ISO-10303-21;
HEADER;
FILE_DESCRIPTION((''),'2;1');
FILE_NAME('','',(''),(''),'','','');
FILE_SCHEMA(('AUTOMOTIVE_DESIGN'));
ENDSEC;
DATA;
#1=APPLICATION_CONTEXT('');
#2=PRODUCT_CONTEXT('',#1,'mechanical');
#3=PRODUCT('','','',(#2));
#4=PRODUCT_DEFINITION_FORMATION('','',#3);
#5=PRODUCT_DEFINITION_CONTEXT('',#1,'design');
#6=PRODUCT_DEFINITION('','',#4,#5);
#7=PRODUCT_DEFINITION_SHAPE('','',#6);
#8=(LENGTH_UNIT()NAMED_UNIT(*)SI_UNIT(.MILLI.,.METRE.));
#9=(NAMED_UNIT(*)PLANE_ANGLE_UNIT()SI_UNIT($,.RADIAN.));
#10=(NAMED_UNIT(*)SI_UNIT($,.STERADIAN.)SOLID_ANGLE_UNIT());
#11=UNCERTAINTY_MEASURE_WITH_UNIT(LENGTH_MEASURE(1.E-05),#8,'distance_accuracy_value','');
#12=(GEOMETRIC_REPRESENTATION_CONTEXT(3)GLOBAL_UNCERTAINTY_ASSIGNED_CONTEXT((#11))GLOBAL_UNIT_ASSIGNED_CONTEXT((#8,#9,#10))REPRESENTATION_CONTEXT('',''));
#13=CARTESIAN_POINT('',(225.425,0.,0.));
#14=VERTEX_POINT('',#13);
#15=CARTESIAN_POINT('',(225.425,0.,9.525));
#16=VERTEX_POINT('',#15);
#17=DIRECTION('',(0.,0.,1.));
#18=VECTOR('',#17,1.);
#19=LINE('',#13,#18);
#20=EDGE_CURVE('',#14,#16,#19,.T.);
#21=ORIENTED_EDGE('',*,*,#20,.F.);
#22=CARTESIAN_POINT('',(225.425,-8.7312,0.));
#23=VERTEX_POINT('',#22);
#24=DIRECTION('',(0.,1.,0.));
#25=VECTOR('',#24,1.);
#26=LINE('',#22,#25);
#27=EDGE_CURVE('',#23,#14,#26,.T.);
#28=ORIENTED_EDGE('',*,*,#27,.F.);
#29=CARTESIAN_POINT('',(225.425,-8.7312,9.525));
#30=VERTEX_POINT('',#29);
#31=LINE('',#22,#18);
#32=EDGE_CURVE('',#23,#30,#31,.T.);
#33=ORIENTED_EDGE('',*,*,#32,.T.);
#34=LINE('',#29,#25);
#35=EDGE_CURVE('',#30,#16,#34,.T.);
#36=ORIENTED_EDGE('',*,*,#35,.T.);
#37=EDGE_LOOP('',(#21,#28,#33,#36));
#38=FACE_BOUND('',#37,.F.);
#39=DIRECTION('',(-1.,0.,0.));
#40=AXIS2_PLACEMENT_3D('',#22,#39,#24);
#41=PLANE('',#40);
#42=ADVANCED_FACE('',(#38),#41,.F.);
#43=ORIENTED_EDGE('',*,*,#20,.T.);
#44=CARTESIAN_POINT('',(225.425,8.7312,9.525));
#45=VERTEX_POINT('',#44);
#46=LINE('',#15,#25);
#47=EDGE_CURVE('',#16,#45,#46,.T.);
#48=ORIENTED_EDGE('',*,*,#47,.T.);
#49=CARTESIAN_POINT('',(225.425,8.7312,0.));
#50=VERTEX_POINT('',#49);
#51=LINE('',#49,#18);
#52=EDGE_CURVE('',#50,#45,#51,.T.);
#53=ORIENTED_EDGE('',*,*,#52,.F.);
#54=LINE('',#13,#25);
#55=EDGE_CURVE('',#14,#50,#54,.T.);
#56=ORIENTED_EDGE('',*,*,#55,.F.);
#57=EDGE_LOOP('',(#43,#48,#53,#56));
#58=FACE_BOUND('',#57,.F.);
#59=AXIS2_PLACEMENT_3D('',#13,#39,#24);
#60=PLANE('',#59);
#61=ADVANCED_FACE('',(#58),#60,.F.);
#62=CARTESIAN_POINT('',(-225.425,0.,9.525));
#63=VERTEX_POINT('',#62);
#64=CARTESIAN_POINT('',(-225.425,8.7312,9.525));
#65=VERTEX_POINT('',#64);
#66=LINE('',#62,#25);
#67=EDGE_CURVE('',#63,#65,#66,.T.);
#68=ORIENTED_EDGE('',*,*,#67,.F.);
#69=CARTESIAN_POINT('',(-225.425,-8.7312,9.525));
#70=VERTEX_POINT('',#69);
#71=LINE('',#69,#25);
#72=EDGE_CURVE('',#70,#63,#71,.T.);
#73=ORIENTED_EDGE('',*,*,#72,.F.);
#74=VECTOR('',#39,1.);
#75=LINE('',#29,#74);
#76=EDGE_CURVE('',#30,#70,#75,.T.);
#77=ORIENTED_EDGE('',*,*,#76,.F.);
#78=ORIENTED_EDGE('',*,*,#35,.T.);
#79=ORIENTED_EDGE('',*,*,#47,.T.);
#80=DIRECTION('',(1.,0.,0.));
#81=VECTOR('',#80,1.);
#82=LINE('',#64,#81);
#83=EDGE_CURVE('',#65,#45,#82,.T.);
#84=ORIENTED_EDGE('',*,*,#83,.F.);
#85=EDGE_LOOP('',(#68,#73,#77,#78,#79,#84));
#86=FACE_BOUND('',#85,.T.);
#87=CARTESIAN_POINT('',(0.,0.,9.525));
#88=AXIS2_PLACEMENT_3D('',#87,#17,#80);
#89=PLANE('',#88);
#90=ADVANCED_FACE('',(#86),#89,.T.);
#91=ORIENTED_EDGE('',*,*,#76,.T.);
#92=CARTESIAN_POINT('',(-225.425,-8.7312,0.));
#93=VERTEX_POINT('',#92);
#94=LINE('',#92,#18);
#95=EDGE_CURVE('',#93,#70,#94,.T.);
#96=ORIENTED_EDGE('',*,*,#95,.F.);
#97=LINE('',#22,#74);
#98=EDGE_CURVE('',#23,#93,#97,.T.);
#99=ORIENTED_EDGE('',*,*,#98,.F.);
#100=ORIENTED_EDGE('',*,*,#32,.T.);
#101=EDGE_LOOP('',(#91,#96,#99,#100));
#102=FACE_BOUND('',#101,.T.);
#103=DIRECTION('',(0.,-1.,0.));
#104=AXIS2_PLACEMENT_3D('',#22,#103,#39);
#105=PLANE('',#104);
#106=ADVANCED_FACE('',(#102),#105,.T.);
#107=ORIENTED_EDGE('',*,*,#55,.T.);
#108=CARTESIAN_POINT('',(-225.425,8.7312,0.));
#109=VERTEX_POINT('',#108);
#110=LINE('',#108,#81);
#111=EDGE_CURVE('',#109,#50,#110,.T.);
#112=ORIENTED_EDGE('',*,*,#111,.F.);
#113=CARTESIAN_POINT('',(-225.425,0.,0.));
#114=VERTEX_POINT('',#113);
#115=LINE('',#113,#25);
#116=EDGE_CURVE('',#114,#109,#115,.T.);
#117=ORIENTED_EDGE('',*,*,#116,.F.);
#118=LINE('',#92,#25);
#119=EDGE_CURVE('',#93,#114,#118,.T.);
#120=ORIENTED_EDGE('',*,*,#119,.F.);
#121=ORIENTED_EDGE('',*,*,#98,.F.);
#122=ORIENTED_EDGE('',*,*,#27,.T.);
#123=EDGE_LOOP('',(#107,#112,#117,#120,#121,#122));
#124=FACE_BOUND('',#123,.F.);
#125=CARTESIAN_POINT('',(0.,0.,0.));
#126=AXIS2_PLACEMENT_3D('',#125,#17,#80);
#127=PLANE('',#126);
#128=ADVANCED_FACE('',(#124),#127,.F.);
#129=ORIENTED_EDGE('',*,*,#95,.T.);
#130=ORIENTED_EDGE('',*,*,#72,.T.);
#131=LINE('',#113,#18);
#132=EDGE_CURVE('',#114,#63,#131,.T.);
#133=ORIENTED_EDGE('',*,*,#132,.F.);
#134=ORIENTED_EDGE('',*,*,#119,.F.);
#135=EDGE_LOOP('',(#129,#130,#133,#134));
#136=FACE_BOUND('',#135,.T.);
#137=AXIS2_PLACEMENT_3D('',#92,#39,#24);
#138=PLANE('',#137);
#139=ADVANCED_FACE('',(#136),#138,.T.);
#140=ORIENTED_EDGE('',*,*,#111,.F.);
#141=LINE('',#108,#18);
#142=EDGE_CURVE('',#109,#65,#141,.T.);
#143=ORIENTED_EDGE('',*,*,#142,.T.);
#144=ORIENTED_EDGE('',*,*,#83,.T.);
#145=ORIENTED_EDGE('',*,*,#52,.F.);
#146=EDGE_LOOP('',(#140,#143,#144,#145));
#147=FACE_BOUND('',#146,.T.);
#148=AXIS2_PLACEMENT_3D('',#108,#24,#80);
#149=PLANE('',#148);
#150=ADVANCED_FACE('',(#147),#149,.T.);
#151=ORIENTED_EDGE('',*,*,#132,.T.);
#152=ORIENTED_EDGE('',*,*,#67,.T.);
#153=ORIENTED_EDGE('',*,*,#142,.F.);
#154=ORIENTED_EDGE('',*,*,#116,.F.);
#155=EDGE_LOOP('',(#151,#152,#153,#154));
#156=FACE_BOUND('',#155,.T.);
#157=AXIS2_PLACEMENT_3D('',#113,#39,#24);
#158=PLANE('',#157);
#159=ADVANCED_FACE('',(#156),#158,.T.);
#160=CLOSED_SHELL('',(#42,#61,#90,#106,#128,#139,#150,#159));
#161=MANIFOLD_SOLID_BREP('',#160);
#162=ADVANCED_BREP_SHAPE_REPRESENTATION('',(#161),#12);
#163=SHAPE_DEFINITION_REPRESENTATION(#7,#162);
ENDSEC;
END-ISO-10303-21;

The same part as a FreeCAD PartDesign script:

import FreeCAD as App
import Part
import Sketcher
Q = App.Units.Quantity

doc = App.newDocument("Part")
body = doc.addObject("PartDesign::Body", "Body")

sketch1 = doc.addObject("Sketcher::SketchObject", "Sketch")
body.addObject(sketch1)
sketch1.AttachmentSupport = (doc.XY_Plane, [""])
sketch1.MapMode = "FlatFace"
sketch1.addGeometry(Part.LineSegment(App.Vector(-225, -9, 0), App.Vector(225, -9, 0)), False)
sketch1.addGeometry(Part.LineSegment(App.Vector(225, -9, 0), App.Vector(225, 9, 0)), False)
sketch1.addGeometry(Part.LineSegment(App.Vector(225, 9, 0), App.Vector(-225, 9, 0)), False)
sketch1.addGeometry(Part.LineSegment(App.Vector(-225, 9, 0), App.Vector(-225, -9, 0)), False)
sketch1.addConstraint(Sketcher.Constraint("Coincident", 0, 2, 1, 1))
sketch1.addConstraint(Sketcher.Constraint("Coincident", 1, 2, 2, 1))
sketch1.addConstraint(Sketcher.Constraint("Coincident", 2, 2, 3, 1))
sketch1.addConstraint(Sketcher.Constraint("Coincident", 3, 2, 0, 1))
sketch1.addConstraint(Sketcher.Constraint("Horizontal", 0))
sketch1.addConstraint(Sketcher.Constraint("Vertical", 1))
sketch1.addConstraint(Sketcher.Constraint("Horizontal", 2))
sketch1.addConstraint(Sketcher.Constraint("Vertical", 3))
sketch1.addConstraint(Sketcher.Constraint("Symmetric", 0, 2, 2, 2, -1, 1))
sketch1.addConstraint(Sketcher.Constraint("DistanceY", 1, 1, 1, 2, Q("0.6875 in")))
sketch1.addConstraint(Sketcher.Constraint("DistanceX", -1, 1, 0, 2, Q("8.875 in")))
pad1 = doc.addObject("PartDesign::Pad", "Pad")
body.addObject(pad1)
pad1.Profile = sketch1
pad1.Length = Q("0.375 in")

doc.recompute()
